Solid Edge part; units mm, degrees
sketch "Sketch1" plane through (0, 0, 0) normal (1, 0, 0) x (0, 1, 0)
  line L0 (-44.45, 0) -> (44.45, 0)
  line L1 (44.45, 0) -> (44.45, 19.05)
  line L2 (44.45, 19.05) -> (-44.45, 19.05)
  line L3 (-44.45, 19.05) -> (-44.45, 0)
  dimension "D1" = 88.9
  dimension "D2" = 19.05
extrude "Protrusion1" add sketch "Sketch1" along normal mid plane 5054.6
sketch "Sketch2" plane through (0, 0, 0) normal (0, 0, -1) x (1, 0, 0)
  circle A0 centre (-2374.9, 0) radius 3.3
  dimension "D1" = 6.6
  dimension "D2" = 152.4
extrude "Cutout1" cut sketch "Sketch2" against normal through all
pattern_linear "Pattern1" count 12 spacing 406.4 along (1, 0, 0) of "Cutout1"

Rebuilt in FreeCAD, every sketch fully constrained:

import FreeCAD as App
import Part
import Sketcher

V = App.Vector
Q = App.Units.Quantity


def add_polygon(sketch, points):
    """Adds a closed chain of lines whose ends are joined by coincident constraints."""
    first, n = sketch.GeometryCount, len(points)
    for a, b in zip(points, points[1:] + points[:1]):
        sketch.addGeometry(Part.LineSegment(App.Vector(*a, 0), App.Vector(*b, 0)), False)
    for i in range(n):
        sketch.addConstraint(Sketcher.Constraint("Coincident", first + i, 2, first + (i + 1) % n, 1))

doc = App.newDocument("Part")
body = doc.addObject("PartDesign::Body", "Body")

# Sketch on YZ plane
sketch1 = body.newObject("Sketcher::SketchObject", "Sketch")
sketch1.AttachmentSupport = (doc.getObject("YZ_Plane"), [""])
sketch1.MapMode = "FlatFace"
add_polygon(sketch1, [(-44, 19), (-44, 0), (44, 0), (44, 19)])  # lines 0-3
sketch1.addConstraint([
    Sketcher.Constraint("Vertical", 0),
    Sketcher.Constraint("Horizontal", 1),
    Sketcher.Constraint("Vertical", 2),
    Sketcher.Constraint("Horizontal", 3),
    Sketcher.Constraint("Symmetric", 0, 2, 1, 2, -1, 1),
    Sketcher.Constraint("DistanceX", 1, 1, 1, 2, Q("3.5 in")),
    Sketcher.Constraint("DistanceY", 0, 2, 0, 1, Q("0.75 in")),
])
pad1 = body.newObject("PartDesign::Pad", "Pad")
pad1.Profile = sketch1
pad1.Length = Q("199 in")
pad1.Midplane = True

# Sketch on XY plane
sketch2 = body.newObject("Sketcher::SketchObject", "Sketch001")
sketch2.AttachmentSupport = (doc.getObject("XY_Plane"), [""])
sketch2.MapMode = "FlatFace"
sketch2.addGeometry(Part.Circle(V(-2374.9, 0, 0), V(0, 0, 1), 3.3), False)
sketch2.addConstraint([
    Sketcher.Constraint("PointOnObject", 0, 3, -1),
    Sketcher.Constraint("DistanceX", 0, 3, -1, 1, Q("93.5 in")),
    Sketcher.Constraint("Diameter", 0, Q("6.6 mm")),
])
pocket1 = body.newObject("PartDesign::Pocket", "Pocket")
pocket1.Profile = sketch2
pocket1.Type = "ThroughAll"
pocket1.Reversed = True
doc.recompute()

linearpattern = body.newObject("PartDesign::LinearPattern", "LinearPattern")
linearpattern.Originals = [pocket1]
linearpattern.Direction = (doc.getObject("X_Axis"), [""])
linearpattern.Mode = "offset"
linearpattern.Offset = Q("16 in")
linearpattern.Occurrences = 12
body.Tip = linearpattern

doc.recompute()
